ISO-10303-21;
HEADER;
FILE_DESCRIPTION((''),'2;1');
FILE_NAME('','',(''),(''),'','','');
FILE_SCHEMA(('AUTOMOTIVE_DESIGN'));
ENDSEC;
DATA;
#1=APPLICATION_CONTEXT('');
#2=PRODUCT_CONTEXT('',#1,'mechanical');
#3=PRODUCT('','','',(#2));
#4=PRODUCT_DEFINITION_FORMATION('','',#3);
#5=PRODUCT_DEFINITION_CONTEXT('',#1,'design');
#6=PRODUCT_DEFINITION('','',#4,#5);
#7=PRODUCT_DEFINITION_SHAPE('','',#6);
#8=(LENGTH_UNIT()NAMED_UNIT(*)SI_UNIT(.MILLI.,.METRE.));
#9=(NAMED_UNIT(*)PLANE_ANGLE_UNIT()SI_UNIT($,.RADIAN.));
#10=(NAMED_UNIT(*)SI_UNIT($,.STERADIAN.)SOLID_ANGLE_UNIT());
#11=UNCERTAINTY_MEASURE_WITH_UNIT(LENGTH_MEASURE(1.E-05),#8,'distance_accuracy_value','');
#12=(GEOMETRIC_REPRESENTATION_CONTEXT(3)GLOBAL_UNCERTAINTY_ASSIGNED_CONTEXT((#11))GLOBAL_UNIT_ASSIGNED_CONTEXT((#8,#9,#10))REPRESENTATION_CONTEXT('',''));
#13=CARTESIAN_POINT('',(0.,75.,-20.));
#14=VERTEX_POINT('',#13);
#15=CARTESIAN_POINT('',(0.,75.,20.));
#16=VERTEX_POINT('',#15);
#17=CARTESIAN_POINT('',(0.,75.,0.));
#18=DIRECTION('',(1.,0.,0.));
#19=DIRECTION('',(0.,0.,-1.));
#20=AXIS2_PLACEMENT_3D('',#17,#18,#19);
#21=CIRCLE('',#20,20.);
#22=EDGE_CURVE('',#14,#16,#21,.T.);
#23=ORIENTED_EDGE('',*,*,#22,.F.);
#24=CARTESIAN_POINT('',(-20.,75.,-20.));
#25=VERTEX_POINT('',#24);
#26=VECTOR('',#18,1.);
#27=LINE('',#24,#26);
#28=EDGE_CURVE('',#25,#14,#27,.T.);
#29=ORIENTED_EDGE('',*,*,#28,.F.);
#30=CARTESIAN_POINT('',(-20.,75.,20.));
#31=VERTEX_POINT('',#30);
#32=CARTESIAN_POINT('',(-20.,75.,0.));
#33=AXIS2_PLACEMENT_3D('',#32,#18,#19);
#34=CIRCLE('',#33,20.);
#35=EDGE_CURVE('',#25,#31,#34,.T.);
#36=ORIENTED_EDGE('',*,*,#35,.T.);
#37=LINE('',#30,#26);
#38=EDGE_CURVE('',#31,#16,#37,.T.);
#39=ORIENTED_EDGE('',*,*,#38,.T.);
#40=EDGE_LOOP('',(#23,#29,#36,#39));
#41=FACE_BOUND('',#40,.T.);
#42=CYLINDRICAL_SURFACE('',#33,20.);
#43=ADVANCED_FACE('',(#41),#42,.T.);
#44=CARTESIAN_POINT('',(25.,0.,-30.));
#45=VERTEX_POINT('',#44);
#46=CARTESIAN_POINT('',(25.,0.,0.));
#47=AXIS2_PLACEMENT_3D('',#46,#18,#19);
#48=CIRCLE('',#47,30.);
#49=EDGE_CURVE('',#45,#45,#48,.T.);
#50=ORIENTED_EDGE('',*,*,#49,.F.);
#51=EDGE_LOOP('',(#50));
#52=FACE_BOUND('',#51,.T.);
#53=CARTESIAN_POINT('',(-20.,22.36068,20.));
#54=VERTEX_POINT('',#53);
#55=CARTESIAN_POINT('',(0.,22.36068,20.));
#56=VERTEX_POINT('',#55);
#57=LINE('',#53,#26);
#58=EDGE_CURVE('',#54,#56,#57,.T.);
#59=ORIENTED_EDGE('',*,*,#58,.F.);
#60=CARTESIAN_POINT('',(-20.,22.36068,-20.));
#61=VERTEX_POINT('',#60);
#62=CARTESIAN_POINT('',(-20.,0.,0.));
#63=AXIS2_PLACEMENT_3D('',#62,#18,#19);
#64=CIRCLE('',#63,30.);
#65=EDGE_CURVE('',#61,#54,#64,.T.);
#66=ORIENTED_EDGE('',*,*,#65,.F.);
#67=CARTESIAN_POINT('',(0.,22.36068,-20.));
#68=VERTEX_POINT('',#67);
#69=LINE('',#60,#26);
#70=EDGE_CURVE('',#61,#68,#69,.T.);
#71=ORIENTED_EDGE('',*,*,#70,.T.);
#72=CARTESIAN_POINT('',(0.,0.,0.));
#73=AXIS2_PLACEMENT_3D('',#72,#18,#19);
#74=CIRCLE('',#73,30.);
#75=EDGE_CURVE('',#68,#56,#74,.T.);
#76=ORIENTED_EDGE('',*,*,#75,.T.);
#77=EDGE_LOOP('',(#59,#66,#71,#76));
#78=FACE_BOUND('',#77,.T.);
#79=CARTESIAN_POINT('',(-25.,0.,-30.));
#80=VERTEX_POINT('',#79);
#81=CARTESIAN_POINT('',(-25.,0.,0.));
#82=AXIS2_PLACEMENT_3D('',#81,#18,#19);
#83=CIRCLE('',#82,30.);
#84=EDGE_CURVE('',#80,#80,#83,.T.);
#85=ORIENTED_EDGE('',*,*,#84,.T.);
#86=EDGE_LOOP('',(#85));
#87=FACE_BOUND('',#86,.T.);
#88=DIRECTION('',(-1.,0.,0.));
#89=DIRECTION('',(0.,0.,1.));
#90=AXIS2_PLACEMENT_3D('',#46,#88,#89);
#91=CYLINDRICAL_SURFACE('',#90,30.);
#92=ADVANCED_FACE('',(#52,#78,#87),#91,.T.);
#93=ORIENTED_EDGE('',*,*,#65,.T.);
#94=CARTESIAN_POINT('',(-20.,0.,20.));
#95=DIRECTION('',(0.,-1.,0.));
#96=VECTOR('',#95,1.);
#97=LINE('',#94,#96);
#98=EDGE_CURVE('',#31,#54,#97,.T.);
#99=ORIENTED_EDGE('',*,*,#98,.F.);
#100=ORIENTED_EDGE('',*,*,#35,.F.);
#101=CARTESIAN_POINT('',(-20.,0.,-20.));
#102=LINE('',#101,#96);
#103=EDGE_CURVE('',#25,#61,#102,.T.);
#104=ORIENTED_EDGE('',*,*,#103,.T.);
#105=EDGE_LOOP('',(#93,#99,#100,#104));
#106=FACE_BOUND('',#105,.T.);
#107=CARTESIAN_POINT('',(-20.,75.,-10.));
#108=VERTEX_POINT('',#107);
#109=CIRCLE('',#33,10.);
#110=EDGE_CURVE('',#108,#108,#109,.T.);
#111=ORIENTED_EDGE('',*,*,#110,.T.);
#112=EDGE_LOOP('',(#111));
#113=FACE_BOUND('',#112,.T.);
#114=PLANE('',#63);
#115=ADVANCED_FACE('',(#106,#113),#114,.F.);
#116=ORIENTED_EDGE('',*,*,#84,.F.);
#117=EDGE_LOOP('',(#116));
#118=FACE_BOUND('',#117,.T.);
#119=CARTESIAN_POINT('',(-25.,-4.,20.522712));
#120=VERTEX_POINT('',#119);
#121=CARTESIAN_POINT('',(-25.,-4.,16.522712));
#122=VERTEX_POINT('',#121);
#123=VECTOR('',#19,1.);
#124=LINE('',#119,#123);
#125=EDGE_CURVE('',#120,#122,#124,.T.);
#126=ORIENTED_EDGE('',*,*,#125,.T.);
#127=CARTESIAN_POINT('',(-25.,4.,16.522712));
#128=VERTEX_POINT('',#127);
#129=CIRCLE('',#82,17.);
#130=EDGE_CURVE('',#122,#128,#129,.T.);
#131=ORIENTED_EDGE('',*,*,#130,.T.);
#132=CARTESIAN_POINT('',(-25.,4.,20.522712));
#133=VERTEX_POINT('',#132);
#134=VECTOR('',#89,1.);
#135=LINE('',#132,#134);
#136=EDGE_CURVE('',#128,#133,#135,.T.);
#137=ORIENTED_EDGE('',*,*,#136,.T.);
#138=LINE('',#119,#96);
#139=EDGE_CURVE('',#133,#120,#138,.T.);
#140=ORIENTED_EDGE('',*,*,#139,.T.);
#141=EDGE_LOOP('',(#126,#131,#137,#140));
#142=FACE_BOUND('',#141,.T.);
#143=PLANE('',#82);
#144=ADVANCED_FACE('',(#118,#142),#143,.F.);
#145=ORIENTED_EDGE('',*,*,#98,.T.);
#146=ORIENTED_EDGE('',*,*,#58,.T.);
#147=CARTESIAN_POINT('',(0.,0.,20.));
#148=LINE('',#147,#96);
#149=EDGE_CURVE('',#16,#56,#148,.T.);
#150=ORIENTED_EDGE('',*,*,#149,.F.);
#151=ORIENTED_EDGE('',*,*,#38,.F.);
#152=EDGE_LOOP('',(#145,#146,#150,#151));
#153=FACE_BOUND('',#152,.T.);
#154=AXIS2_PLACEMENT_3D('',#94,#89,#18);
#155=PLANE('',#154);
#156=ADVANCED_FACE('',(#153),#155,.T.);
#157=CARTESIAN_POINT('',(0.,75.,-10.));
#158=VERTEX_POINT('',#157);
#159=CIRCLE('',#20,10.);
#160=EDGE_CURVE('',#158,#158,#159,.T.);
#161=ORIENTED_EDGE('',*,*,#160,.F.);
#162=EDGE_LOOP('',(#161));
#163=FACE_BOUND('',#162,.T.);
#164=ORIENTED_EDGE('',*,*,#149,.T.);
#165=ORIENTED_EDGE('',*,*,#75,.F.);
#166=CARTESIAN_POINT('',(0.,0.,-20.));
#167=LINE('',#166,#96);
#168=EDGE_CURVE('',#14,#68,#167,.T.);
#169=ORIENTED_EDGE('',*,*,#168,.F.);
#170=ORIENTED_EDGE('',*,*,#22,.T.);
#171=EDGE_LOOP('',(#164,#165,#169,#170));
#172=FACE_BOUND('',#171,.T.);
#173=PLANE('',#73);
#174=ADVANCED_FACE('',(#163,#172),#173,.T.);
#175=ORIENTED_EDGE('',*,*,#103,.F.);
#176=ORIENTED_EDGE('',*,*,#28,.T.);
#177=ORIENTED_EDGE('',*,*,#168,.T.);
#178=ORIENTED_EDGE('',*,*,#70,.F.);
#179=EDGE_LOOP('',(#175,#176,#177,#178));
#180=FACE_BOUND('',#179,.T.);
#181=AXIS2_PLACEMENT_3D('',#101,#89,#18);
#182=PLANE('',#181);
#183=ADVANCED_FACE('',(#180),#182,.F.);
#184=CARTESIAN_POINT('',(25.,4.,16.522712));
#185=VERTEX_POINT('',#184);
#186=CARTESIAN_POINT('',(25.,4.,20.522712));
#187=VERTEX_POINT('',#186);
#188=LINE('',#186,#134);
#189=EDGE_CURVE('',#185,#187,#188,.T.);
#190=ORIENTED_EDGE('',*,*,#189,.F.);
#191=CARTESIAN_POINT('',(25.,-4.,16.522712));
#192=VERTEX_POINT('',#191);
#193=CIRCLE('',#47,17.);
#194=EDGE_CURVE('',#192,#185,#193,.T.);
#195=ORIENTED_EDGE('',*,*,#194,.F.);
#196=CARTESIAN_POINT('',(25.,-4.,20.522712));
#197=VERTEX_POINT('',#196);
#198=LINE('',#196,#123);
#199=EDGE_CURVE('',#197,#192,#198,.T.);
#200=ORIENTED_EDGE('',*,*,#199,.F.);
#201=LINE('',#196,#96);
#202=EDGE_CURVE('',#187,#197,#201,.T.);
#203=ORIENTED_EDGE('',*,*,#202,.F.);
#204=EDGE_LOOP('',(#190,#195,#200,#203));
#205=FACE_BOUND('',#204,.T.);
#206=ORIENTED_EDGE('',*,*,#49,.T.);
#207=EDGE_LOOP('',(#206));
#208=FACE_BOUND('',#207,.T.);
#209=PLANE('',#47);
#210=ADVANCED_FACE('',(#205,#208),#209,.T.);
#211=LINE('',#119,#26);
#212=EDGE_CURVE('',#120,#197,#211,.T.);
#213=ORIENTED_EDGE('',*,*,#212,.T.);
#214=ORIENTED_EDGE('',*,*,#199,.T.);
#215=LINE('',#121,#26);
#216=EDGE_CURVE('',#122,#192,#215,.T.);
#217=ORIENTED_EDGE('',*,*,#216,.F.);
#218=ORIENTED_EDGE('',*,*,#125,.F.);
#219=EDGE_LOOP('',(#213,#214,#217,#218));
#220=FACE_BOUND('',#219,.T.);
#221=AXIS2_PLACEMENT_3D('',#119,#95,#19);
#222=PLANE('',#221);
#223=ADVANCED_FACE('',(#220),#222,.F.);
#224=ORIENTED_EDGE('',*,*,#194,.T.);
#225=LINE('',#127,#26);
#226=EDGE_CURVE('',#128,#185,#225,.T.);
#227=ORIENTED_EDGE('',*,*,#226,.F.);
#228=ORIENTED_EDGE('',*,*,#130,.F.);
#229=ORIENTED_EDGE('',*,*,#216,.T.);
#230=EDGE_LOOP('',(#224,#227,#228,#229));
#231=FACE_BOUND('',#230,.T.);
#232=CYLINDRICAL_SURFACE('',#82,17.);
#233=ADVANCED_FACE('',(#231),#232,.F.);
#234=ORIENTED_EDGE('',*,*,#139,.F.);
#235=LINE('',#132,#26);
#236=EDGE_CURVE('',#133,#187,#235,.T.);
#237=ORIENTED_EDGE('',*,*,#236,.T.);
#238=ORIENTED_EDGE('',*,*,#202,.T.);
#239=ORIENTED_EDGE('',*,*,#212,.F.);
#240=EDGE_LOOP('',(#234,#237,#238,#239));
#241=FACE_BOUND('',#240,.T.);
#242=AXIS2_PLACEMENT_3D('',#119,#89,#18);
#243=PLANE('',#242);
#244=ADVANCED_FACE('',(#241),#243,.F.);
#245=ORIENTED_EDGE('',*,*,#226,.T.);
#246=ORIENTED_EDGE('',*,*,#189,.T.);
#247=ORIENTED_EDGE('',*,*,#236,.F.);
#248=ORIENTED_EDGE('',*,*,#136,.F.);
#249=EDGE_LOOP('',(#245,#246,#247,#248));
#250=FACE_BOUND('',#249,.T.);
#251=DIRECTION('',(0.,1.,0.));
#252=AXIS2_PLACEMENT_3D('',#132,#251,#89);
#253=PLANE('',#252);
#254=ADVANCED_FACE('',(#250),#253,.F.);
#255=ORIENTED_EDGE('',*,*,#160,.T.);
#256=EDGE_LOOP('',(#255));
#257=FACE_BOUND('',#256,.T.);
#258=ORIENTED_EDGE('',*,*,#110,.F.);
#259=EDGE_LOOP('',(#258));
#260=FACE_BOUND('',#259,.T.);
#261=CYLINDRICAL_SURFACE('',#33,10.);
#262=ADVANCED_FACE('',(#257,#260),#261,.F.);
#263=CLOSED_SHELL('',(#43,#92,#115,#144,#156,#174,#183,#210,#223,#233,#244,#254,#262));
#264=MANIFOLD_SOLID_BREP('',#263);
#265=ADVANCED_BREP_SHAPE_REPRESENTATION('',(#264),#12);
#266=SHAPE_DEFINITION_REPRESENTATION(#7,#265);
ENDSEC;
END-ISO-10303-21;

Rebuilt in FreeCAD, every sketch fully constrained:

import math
import FreeCAD as App
import Part
import Sketcher

V = App.Vector
Q = App.Units.Quantity

doc = App.newDocument("Part")
body = doc.addObject("PartDesign::Body", "Body")

# Sketch on YZ plane
sketch1 = body.newObject("Sketcher::SketchObject", "Sketch")
sketch1.AttachmentSupport = (doc.getObject("YZ_Plane"), [""])
sketch1.MapMode = "FlatFace"
sketch1.addGeometry(Part.Circle(V(0, 0, 0), V(0, 0, 1), 30), False)
sketch1.addConstraint([
    Sketcher.Constraint("Coincident", 0, 3, -1, 1),
    Sketcher.Constraint("Diameter", 0, Q("60 mm")),
])
pad1 = body.newObject("PartDesign::Pad", "Pad")
pad1.Profile = sketch1
pad1.Length = 50
pad1.Midplane = True

# Sketch on YZ plane
sketch2 = body.newObject("Sketcher::SketchObject", "Sketch001")
sketch2.AttachmentSupport = (doc.getObject("YZ_Plane"), [""])
sketch2.MapMode = "FlatFace"
sketch2.addGeometry([
    Part.ArcOfCircle(Part.Circle(V(75, 0, 0), V(0, 0, 1), 20), math.radians(-90), math.radians(90)),  # 0
    Part.LineSegment(V(75, 20, 0), V(22.36068, 20, 0)),  # 1
    Part.ArcOfCircle(Part.Circle(V(0, 0, 0), V(0, 0, 1), 30), math.radians(0), math.radians(41.810315)),  # 2
    Part.ArcOfCircle(Part.Circle(V(0, 0, 0), V(0, 0, 1), 30), math.radians(-41.810315), math.radians(0)),  # 3
    Part.LineSegment(V(22.36068, -20, 0), V(75, -20, 0)),  # 4
    Part.Circle(V(75, 0, 0), V(0, 0, 1), 10),  # 5
], False)
sketch2.addConstraint([
    Sketcher.Constraint("Tangent", 0, 2, 1, 1),
    Sketcher.Constraint("Coincident", 1, 2, 2, 2),
    Sketcher.Constraint("Tangent", 2, 1, 3, 2),
    Sketcher.Constraint("Coincident", 3, 1, 4, 1),
    Sketcher.Constraint("Tangent", 4, 2, 0, 1),
    Sketcher.Constraint("Horizontal", 1),
    Sketcher.Constraint("Horizontal", 4),
    Sketcher.Constraint("Coincident", 2, 3, -1, 1),
    Sketcher.Constraint("Coincident", 5, 3, 0, 3),
    Sketcher.Constraint("Equal", 2, 3),
    Sketcher.Constraint("PointOnObject", 0, 3, -1),
    Sketcher.Constraint("PointOnObject", 2, 1, -1),
    Sketcher.Constraint("Diameter", 5, Q("20 mm")),
    Sketcher.Constraint("Radius", 0, Q("20 mm")),
    Sketcher.Constraint("Radius", 2, Q("30 mm")),
    Sketcher.Constraint("DistanceX", -1, 1, 0, 3, Q("75 mm")),
])
pad2 = body.newObject("PartDesign::Pad", "Pad001")
pad2.Profile = sketch2
pad2.Length = 20
pad2.Reversed = True

# Sketch on YZ plane
sketch3 = body.newObject("Sketcher::SketchObject", "Sketch002")
sketch3.AttachmentSupport = (doc.getObject("YZ_Plane"), [""])
sketch3.MapMode = "FlatFace"
sketch3.AttachmentOffset = App.Placement(V(0, 0, 25), App.Rotation())
sketch3.addGeometry([
    Part.LineSegment(V(4, 20.522712, 0), V(-4, 20.522712, 0)),
    Part.LineSegment(V(-4, 20.522712, 0), V(-4, 16.522712, 0)),
    Part.ArcOfCircle(Part.Circle(V(0, 0, 0), V(0, 0, 1), 17), math.radians(103.608961), math.radians(436.391039)),
    Part.LineSegment(V(4, 16.522712, 0), V(4, 20.522712, 0)),
], False)
sketch3.addConstraint([
    Sketcher.Constraint("Coincident", 0, 2, 1, 1),
    Sketcher.Constraint("Coincident", 1, 2, 2, 1),
    Sketcher.Constraint("Coincident", 2, 2, 3, 1),
    Sketcher.Constraint("Coincident", 3, 2, 0, 1),
    Sketcher.Constraint("Horizontal", 0),
    Sketcher.Constraint("Vertical", 1),
    Sketcher.Constraint("Vertical", 3),
    Sketcher.Constraint("Coincident", 2, 3, -1, 1),
    Sketcher.Constraint("Horizontal", 1, 2, 2, 2),
    Sketcher.Constraint("Radius", 2, Q("17 mm")),
    Sketcher.Constraint("DistanceX", 0, 2, 0, 1, Q("8 mm")),
    Sketcher.Constraint("DistanceY", 1, 2, 1, 1, Q("4 mm")),
])
pocket1 = body.newObject("PartDesign::Pocket", "Pocket")
pocket1.Profile = sketch3
pocket1.Type = "ThroughAll"

doc.recompute()
